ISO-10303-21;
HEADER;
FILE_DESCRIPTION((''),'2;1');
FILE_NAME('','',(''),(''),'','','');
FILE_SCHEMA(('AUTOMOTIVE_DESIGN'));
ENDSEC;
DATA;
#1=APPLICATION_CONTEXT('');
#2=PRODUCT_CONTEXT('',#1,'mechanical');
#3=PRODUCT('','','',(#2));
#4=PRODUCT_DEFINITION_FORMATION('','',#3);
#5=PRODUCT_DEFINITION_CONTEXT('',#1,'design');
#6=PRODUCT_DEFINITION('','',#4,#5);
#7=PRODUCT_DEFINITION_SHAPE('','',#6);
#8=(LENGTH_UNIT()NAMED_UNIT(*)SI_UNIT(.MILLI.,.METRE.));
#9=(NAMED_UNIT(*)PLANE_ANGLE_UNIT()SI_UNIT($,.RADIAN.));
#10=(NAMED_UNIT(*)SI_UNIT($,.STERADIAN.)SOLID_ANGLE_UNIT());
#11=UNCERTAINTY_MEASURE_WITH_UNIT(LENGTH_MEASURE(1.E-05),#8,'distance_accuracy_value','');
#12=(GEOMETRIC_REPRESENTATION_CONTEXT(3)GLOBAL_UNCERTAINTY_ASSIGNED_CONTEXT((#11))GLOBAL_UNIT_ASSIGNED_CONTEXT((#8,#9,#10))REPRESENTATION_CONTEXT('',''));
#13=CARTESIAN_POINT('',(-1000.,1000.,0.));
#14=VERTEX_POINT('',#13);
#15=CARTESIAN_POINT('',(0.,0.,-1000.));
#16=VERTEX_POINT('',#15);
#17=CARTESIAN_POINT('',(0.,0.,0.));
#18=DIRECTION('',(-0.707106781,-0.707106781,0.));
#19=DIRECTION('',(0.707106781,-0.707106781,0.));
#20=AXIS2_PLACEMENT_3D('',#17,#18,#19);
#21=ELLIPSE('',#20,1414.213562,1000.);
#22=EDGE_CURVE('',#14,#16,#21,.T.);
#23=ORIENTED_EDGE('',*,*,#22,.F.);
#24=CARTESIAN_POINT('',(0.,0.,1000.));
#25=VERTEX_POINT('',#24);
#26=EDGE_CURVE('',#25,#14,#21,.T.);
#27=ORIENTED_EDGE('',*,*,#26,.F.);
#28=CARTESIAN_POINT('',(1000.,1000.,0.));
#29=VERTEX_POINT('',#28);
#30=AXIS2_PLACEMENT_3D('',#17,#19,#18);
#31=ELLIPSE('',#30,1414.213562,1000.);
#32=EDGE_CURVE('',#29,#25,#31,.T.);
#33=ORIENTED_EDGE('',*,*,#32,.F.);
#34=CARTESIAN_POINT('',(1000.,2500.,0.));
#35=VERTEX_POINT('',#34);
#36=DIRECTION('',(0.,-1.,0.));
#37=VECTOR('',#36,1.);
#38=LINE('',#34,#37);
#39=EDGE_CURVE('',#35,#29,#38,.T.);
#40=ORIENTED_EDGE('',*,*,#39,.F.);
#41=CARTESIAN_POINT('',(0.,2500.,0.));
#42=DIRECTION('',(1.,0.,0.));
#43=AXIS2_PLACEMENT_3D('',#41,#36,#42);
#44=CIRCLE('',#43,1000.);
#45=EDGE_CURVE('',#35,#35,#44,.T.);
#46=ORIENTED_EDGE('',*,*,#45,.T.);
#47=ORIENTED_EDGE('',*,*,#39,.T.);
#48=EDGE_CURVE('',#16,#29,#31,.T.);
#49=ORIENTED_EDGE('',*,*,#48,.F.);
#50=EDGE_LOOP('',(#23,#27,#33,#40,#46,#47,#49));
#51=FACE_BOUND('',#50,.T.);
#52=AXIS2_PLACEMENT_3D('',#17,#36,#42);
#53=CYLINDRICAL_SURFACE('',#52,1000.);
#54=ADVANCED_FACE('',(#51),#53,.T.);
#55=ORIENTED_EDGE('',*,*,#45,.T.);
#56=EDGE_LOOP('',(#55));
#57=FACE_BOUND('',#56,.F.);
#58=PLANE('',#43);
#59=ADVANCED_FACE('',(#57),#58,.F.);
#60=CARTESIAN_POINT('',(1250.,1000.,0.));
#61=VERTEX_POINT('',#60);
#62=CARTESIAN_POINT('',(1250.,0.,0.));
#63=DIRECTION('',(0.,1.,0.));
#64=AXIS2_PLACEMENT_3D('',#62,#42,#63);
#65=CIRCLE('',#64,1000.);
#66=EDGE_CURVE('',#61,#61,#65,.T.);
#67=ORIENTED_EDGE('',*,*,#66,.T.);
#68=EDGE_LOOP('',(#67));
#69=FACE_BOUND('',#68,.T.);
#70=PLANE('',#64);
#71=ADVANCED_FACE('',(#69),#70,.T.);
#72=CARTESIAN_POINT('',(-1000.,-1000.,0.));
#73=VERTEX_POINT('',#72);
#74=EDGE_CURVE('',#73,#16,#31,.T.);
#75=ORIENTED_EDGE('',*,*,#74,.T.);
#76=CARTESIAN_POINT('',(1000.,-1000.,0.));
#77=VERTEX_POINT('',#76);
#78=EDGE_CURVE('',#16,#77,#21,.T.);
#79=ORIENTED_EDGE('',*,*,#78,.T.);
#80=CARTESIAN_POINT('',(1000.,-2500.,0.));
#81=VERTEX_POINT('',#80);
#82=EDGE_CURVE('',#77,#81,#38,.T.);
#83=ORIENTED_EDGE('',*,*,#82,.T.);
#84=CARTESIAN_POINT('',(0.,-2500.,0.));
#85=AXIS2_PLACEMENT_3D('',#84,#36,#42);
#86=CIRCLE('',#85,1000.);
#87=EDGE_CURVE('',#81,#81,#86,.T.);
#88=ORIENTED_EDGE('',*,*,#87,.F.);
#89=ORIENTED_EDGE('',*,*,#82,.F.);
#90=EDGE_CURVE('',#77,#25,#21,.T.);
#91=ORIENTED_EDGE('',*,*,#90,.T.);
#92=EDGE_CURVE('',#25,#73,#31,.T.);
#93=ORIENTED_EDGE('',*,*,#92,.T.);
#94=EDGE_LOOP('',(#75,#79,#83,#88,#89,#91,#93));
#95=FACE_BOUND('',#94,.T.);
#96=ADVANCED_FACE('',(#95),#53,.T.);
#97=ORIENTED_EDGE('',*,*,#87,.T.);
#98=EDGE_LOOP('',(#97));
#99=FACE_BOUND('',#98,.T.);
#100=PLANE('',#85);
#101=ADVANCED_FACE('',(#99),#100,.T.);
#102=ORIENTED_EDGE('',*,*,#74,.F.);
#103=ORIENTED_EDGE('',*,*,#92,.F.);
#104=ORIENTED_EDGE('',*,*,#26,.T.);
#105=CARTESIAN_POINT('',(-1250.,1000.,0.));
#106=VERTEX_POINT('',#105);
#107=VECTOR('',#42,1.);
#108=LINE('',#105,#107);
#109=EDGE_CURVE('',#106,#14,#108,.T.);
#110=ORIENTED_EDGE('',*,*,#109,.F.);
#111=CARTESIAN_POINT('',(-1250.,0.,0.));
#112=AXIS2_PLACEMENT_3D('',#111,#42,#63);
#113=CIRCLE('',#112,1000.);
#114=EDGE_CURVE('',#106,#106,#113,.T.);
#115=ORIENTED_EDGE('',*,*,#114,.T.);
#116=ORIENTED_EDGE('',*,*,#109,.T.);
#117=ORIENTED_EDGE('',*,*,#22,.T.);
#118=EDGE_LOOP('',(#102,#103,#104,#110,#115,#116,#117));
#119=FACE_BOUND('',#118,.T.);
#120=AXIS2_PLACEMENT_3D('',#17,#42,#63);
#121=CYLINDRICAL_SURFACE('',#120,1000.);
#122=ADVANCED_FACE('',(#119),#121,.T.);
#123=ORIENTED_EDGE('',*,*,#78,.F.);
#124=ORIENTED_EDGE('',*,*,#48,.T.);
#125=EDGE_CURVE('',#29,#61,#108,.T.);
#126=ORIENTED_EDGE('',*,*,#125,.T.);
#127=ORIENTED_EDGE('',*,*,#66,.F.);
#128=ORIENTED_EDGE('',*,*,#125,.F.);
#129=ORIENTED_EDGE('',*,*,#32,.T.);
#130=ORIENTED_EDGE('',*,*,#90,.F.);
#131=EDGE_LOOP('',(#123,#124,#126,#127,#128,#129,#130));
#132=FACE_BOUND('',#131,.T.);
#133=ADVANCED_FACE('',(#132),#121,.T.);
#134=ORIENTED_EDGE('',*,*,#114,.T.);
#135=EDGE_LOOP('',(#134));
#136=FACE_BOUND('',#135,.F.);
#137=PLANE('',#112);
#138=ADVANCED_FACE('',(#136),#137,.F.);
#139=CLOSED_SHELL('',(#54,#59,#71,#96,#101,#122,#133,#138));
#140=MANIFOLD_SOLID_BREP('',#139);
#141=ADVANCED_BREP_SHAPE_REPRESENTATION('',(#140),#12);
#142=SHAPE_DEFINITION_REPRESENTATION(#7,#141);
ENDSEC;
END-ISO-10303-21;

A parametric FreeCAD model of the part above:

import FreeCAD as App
import Part
import Sketcher
from FreeCAD import Vector

doc = App.newDocument("Part")
body = doc.addObject("PartDesign::Body", "Body")

# Sketch on XZ plane
sketch1 = body.newObject("Sketcher::SketchObject", "Sketch")
sketch1.AttachmentSupport = (doc.getObject("XZ_Plane"), [""])
sketch1.MapMode = "FlatFace"
sketch1.addGeometry(Part.Circle(Vector(0, 0, 0), Vector(0, 0, 1), 1000), False)
sketch1.addConstraint([
    Sketcher.Constraint("Coincident", 0, 3, -1, 1),
    Sketcher.Constraint("Diameter", 0, 2000.0),
])
pad1 = body.newObject("PartDesign::Pad", "Pad")
pad1.Profile = sketch1
pad1.Length = 5000
pad1.Midplane = True

# Sketch on YZ plane
sketch2 = body.newObject("Sketcher::SketchObject", "Sketch001")
sketch2.AttachmentSupport = (doc.getObject("YZ_Plane"), [""])
sketch2.MapMode = "FlatFace"
sketch2.addGeometry(Part.Circle(Vector(0, 0, 0), Vector(0, 0, 1), 1000), False)
sketch2.addConstraint([
    Sketcher.Constraint("Coincident", 0, 3, -1, 1),
    Sketcher.Constraint("Diameter", 0, 2000.0),
])
pad2 = body.newObject("PartDesign::Pad", "Pad001")
pad2.Profile = sketch2
pad2.Length = 2500
pad2.Midplane = True

doc.recompute()
